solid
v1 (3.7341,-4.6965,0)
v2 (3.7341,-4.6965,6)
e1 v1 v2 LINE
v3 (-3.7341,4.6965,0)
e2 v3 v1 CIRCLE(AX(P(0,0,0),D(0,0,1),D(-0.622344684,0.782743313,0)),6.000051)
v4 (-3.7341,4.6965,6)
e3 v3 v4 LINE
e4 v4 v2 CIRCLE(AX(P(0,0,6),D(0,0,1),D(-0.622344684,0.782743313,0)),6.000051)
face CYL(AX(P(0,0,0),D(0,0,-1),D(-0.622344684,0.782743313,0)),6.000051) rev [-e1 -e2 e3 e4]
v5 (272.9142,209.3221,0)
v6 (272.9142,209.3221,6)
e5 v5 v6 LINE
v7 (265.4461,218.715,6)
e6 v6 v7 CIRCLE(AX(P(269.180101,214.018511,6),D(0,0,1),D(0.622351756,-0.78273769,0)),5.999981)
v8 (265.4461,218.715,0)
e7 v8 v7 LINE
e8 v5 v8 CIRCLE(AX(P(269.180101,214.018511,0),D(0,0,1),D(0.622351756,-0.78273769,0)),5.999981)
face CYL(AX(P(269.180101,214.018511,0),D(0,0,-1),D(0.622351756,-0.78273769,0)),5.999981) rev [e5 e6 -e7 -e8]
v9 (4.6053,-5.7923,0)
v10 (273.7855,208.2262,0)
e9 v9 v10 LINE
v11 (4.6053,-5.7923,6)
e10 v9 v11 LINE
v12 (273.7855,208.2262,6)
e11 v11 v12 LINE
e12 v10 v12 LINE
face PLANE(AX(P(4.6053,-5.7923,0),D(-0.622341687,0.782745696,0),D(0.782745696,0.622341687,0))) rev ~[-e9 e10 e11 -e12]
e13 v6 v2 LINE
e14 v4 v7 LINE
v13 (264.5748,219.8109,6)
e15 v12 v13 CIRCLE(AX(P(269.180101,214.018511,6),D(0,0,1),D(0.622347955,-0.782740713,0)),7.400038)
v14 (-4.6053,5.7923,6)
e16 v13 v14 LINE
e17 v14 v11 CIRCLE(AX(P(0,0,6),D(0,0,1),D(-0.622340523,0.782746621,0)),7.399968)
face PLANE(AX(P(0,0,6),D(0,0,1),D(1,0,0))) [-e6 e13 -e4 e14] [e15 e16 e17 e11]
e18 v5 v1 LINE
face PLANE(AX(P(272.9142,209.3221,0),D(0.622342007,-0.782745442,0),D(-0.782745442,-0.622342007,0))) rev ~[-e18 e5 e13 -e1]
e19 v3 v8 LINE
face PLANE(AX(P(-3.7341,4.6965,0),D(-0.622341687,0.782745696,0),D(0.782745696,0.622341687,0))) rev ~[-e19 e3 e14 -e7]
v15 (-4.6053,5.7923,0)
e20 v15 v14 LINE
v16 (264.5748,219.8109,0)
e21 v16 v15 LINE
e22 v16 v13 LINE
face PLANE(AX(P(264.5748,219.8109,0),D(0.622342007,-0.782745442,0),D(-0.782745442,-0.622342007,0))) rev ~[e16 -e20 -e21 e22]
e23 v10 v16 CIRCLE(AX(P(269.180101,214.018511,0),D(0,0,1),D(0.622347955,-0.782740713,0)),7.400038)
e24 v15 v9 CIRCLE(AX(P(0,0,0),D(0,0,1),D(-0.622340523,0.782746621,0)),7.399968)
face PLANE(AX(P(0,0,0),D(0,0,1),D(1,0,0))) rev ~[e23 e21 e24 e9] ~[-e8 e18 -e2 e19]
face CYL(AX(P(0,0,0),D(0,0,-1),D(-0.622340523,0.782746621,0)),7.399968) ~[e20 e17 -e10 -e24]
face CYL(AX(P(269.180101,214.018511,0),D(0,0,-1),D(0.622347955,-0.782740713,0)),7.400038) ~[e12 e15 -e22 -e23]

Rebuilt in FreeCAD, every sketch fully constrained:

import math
import FreeCAD as App
import Part
import Sketcher
Q = App.Units.Quantity

doc = App.newDocument("Part")
body = doc.addObject("PartDesign::Body", "Body")

# Sketch on XY plane
sketch1 = body.newObject("Sketcher::SketchObject", "Sketch")
sketch1.AttachmentSupport = (doc.getObject("XY_Plane"), [""])
sketch1.MapMode = "FlatFace"
sketch1.addGeometry(Part.LineSegment(App.Vector(265, 220, 0), App.Vector(-5, 6, 0)), False)
sketch1.addGeometry(Part.ArcOfCircle(Part.Circle(App.Vector(0, 0, 0), App.Vector(0, 0, 1), 7), math.radians(128), math.radians(308)), False)
sketch1.addGeometry(Part.LineSegment(App.Vector(5, -6, 0), App.Vector(274, 208, 0)), False)
sketch1.addGeometry(Part.ArcOfCircle(Part.Circle(App.Vector(269, 214, 0), App.Vector(0, 0, 1), 7), math.radians(-52), math.radians(128)), False)
sketch1.addGeometry(Part.ArcOfCircle(Part.Circle(App.Vector(0, 0, 0), App.Vector(0, 0, 1), 6), math.radians(128), math.radians(308)), False)
sketch1.addGeometry(Part.LineSegment(App.Vector(-4, 5, 0), App.Vector(265, 219, 0)), False)
sketch1.addGeometry(Part.ArcOfCircle(Part.Circle(App.Vector(269, 214, 0), App.Vector(0, 0, 1), 6), math.radians(-52), math.radians(128)), False)
sketch1.addGeometry(Part.LineSegment(App.Vector(273, 209, 0), App.Vector(4, -5, 0)), False)
sketch1.addConstraint(Sketcher.Constraint("Tangent", 0, 2, 1, 1))
sketch1.addConstraint(Sketcher.Constraint("Tangent", 1, 2, 2, 1))
sketch1.addConstraint(Sketcher.Constraint("Tangent", 2, 2, 3, 1))
sketch1.addConstraint(Sketcher.Constraint("Tangent", 3, 2, 0, 1))
sketch1.addConstraint(Sketcher.Constraint("Tangent", 4, 1, 5, 1))
sketch1.addConstraint(Sketcher.Constraint("Tangent", 5, 2, 6, 2))
sketch1.addConstraint(Sketcher.Constraint("Tangent", 6, 1, 7, 1))
sketch1.addConstraint(Sketcher.Constraint("Tangent", 7, 2, 4, 2))
sketch1.addConstraint(Sketcher.Constraint("Coincident", 1, 3, -1, 1))
sketch1.addConstraint(Sketcher.Constraint("Coincident", 4, 3, -1, 1))
sketch1.addConstraint(Sketcher.Constraint("Coincident", 6, 3, 3, 3))
sketch1.addConstraint(Sketcher.Constraint("Equal", 1, 3))
sketch1.addConstraint(Sketcher.Constraint("Equal", 4, 6))
sketch1.addConstraint(Sketcher.Constraint("Radius", 4, Q("6 mm")))
sketch1.addConstraint(Sketcher.Constraint("Radius", 1, Q("7.4 mm")))
sketch1.addConstraint(Sketcher.Constraint("DistanceX", -1, 1, 3, 2, Q("264.575 mm")))
sketch1.addConstraint(Sketcher.Constraint("DistanceY", -1, 1, 5, 2, Q("218.715 mm")))
pad1 = body.newObject("PartDesign::Pad", "Pad")
pad1.Profile = sketch1
pad1.Length = 6

doc.recompute()
